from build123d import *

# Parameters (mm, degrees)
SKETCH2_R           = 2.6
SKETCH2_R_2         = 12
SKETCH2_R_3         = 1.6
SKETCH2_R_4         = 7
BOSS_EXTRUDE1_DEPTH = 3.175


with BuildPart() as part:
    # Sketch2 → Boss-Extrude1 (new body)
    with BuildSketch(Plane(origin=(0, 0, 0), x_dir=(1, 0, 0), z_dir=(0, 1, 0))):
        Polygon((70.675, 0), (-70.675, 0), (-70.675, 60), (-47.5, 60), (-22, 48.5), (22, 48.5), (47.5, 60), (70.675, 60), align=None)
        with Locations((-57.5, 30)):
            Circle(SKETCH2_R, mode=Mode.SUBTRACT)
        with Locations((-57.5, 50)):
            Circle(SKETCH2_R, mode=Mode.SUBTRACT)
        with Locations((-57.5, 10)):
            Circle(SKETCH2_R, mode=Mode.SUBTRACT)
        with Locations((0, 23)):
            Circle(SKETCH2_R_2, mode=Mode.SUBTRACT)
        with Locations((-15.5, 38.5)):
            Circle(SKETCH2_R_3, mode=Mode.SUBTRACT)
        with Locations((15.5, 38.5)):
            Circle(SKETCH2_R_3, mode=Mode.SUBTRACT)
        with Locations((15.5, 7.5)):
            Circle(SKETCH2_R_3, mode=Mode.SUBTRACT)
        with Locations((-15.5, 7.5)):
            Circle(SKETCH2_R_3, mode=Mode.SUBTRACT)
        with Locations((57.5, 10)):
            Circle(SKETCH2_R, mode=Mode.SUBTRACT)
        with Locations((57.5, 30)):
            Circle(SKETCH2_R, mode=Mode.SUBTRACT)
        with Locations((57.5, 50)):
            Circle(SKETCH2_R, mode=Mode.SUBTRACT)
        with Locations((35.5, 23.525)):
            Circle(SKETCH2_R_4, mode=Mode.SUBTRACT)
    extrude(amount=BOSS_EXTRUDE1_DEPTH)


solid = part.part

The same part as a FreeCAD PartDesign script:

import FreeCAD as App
import Part
import Sketcher

V = App.Vector
Q = App.Units.Quantity


def add_polygon(sketch, points):
    """Adds a closed chain of lines whose ends are joined by coincident constraints."""
    first, n = sketch.GeometryCount, len(points)
    for a, b in zip(points, points[1:] + points[:1]):
        sketch.addGeometry(Part.LineSegment(App.Vector(*a, 0), App.Vector(*b, 0)), False)
    for i in range(n):
        sketch.addConstraint(Sketcher.Constraint("Coincident", first + i, 2, first + (i + 1) % n, 1))

doc = App.newDocument("Part")
body = doc.addObject("PartDesign::Body", "Body")

sketch1 = body.newObject("Sketcher::SketchObject", "Sketch")
sketch1.AttachmentSupport = (doc.getObject("XZ_Plane"), [""])
sketch1.MapMode = "FlatFace"
add_polygon(sketch1, [(-70.7, 0), (70.7, 0), (70.7, -60), (47.5, -60), (22, -48.5), (-22, -48.5), (-47.5, -60), (-70.7, -60)])
sketch1.addGeometry(Part.Circle(V(57.5, -10, 0), V(0, 0, 1), 2.6), False)
sketch1.addGeometry(Part.Circle(V(15.5, -7.5, 0), V(0, 0, 1), 1.6), False)
sketch1.addGeometry(Part.Circle(V(35.5, -23.5, 0), V(0, 0, 1), 7), False)
sketch1.addGeometry(Part.Circle(V(-15.5, -7.5, 0), V(0, 0, 1), 1.6), False)
sketch1.addGeometry(Part.Circle(V(-57.5, -10, 0), V(0, 0, 1), 2.6), False)
sketch1.addGeometry(Part.Circle(V(0, -23, 0), V(0, 0, 1), 12), False)
sketch1.addGeometry(Part.Circle(V(57.5, -30, 0), V(0, 0, 1), 2.6), False)
sketch1.addGeometry(Part.Circle(V(15.5, -38.5, 0), V(0, 0, 1), 1.6), False)
sketch1.addGeometry(Part.Circle(V(57.5, -50, 0), V(0, 0, 1), 2.6), False)
sketch1.addGeometry(Part.Circle(V(-15.5, -38.5, 0), V(0, 0, 1), 1.6), False)
sketch1.addGeometry(Part.Circle(V(-57.5, -30, 0), V(0, 0, 1), 2.6), False)
sketch1.addGeometry(Part.Circle(V(-57.5, -50, 0), V(0, 0, 1), 2.6), False)
sketch1.addConstraint(Sketcher.Constraint("Horizontal", 0))
sketch1.addConstraint(Sketcher.Constraint("Vertical", 1))
sketch1.addConstraint(Sketcher.Constraint("Horizontal", 2))
sketch1.addConstraint(Sketcher.Constraint("Horizontal", 4))
sketch1.addConstraint(Sketcher.Constraint("Horizontal", 6))
sketch1.addConstraint(Sketcher.Constraint("Vertical", 7))
sketch1.addConstraint(Sketcher.Constraint("Equal", 9, 11))
sketch1.addConstraint(Sketcher.Constraint("Equal", 8, 12))
sketch1.addConstraint(Sketcher.Constraint("Equal", 12, 14))
sketch1.addConstraint(Sketcher.Constraint("Equal", 11, 15))
sketch1.addConstraint(Sketcher.Constraint("Equal", 14, 16))
sketch1.addConstraint(Sketcher.Constraint("Equal", 15, 17))
sketch1.addConstraint(Sketcher.Constraint("Equal", 16, 18))
sketch1.addConstraint(Sketcher.Constraint("Equal", 18, 19))
sketch1.addConstraint(Sketcher.Constraint("Symmetric", 0, 2, 7, 2, -1, 1))
sketch1.addConstraint(Sketcher.Constraint("Symmetric", 9, 3, 11, 3, -2))
sketch1.addConstraint(Sketcher.Constraint("Symmetric", 8, 3, 12, 3, -2))
sketch1.addConstraint(Sketcher.Constraint("Symmetric", 15, 3, 17, 3, -2))
sketch1.addConstraint(Sketcher.Constraint("Symmetric", 14, 3, 18, 3, -2))
sketch1.addConstraint(Sketcher.Constraint("Symmetric", 16, 3, 19, 3, -2))
sketch1.addConstraint(Sketcher.Constraint("Symmetric", 2, 2, 5, 2, -2))
sketch1.addConstraint(Sketcher.Constraint("PointOnObject", 13, 3, -2))
sketch1.addConstraint(Sketcher.Constraint("Vertical", 8, 3, 14, 3))
sketch1.addConstraint(Sketcher.Constraint("Vertical", 9, 3, 15, 3))
sketch1.addConstraint(Sketcher.Constraint("Vertical", 14, 3, 16, 3))
sketch1.addConstraint(Sketcher.Constraint("Equal", 3, 5))
sketch1.addConstraint(Sketcher.Constraint("Diameter", 10, Q("14 mm")))
sketch1.addConstraint(Sketcher.Constraint("Diameter", 13, Q("24 mm")))
sketch1.addConstraint(Sketcher.Constraint("Diameter", 8, Q("5.2 mm")))
sketch1.addConstraint(Sketcher.Constraint("Diameter", 9, Q("3.2 mm")))
sketch1.addConstraint(Sketcher.Constraint("DistanceX", 4, 2, 4, 1, Q("44 mm")))
sketch1.addConstraint(Sketcher.Constraint("DistanceY", 1, 2, 1, 1, Q("60 mm")))
sketch1.addConstraint(Sketcher.Constraint("DistanceY", 8, 3, -1, 1, Q("10 mm")))
sketch1.addConstraint(Sketcher.Constraint("DistanceY", 13, 3, -1, 1, Q("23 mm")))
sketch1.addConstraint(Sketcher.Constraint("DistanceY", 14, 3, -1, 1, Q("30 mm")))
sketch1.addConstraint(Sketcher.Constraint("DistanceY", 16, 3, -1, 1, Q("50 mm")))
sketch1.addConstraint(Sketcher.Constraint("DistanceX", 9, 3, 8, 3, Q("42 mm")))
sketch1.addConstraint(Sketcher.Constraint("DistanceX", 9, 3, 10, 3, Q("20 mm")))
sketch1.addConstraint(Sketcher.Constraint("DistanceX", 11, 3, 9, 3, Q("31 mm")))
sketch1.addConstraint(Sketcher.Constraint("DistanceY", 15, 3, 9, 3, Q("31 mm")))
sketch1.addConstraint(Sketcher.Constraint("DistanceX", 2, 2, 16, 3, Q("10 mm")))
sketch1.addConstraint(Sketcher.Constraint("DistanceY", 3, 2, 15, 3, Q("10 mm")))
sketch1.addConstraint(Sketcher.Constraint("DistanceX", 0, 1, 0, 2, Q("141.35 mm")))
sketch1.addConstraint(Sketcher.Constraint("DistanceY", 9, 3, -1, 1, Q("7.5 mm")))
sketch1.addConstraint(Sketcher.Constraint("DistanceY", 10, 3, -1, 1, Q("23.525 mm")))
pad1 = body.newObject("PartDesign::Pad", "Pad")
pad1.Profile = sketch1
pad1.Length = 3.175
pad1.Reversed = True

doc.recompute()
